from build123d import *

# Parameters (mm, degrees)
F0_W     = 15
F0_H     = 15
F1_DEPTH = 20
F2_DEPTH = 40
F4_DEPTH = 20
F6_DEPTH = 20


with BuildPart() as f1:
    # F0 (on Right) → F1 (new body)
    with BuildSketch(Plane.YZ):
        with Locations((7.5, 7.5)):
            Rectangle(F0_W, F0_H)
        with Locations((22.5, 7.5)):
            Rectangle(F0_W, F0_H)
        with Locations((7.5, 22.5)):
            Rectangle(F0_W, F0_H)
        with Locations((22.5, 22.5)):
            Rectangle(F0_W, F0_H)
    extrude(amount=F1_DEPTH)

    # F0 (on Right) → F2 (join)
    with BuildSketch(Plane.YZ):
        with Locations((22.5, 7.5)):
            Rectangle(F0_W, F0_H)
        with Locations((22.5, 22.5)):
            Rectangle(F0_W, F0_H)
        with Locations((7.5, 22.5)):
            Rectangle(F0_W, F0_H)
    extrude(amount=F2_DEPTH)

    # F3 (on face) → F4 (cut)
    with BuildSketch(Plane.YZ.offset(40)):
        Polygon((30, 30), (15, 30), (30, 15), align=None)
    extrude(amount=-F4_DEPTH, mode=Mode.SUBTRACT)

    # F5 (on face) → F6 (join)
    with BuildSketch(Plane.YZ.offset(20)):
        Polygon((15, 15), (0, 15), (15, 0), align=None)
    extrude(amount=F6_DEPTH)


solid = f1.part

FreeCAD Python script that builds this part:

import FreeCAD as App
import Part
import Sketcher
from FreeCAD import Vector
Q = App.Units.Quantity


def add_polygon(sketch, points):
    """Adds a closed chain of lines whose ends are joined by coincident constraints."""
    first, n = sketch.GeometryCount, len(points)
    for a, b in zip(points, points[1:] + points[:1]):
        sketch.addGeometry(Part.LineSegment(App.Vector(*a, 0), App.Vector(*b, 0)), False)
    for i in range(n):
        sketch.addConstraint(Sketcher.Constraint("Coincident", first + i, 2, first + (i + 1) % n, 1))

doc = App.newDocument("Part")
body = doc.addObject("PartDesign::Body", "Body")

sketch1 = body.newObject("Sketcher::SketchObject", "Sketch")
sketch1.AttachmentSupport = (doc.getObject("YZ_Plane"), [""])
sketch1.MapMode = "FlatFace"
add_polygon(sketch1, [(0, 0), (30, 0), (30, 30), (0, 30)])
sketch1.addConstraint(Sketcher.Constraint("Horizontal", 0))
sketch1.addConstraint(Sketcher.Constraint("Vertical", 1))
sketch1.addConstraint(Sketcher.Constraint("Horizontal", 2))
sketch1.addConstraint(Sketcher.Constraint("Vertical", 3))
sketch1.addConstraint(Sketcher.Constraint("Coincident", 3, 2, -1, 1))
sketch1.addConstraint(Sketcher.Constraint("Equal", 2, 1))
sketch1.addConstraint(Sketcher.Constraint("DistanceX", 0, 1, 0, 2, Q("30 mm")))
pad1 = body.newObject("PartDesign::Pad", "Pad")
pad1.Profile = sketch1
pad1.Length = 20

sketch2 = body.newObject("Sketcher::SketchObject", "Sketch001")
sketch2.AttachmentSupport = (doc.getObject("YZ_Plane"), [""])
sketch2.MapMode = "FlatFace"
add_polygon(sketch2, [(15, 0), (30, 0), (30, 30), (0, 30), (0, 15), (15, 15)])
sketch2.addConstraint(Sketcher.Constraint("Horizontal", 0))
sketch2.addConstraint(Sketcher.Constraint("Vertical", 1))
sketch2.addConstraint(Sketcher.Constraint("Horizontal", 2))
sketch2.addConstraint(Sketcher.Constraint("Vertical", 3))
sketch2.addConstraint(Sketcher.Constraint("Horizontal", 4))
sketch2.addConstraint(Sketcher.Constraint("Vertical", 5))
sketch2.addConstraint(Sketcher.Constraint("PointOnObject", 0, 2, -1))
sketch2.addConstraint(Sketcher.Constraint("PointOnObject", 2, 2, -2))
sketch2.addConstraint(Sketcher.Constraint("Equal", 0, 4))
sketch2.addConstraint(Sketcher.Constraint("Equal", 2, 1))
sketch2.addConstraint(Sketcher.Constraint("Equal", 4, 3))
sketch2.addConstraint(Sketcher.Constraint("DistanceX", 0, 1, 0, 2, Q("15 mm")))
pad2 = body.newObject("PartDesign::Pad", "Pad001")
pad2.Profile = sketch2
pad2.Length = 40

sketch3 = body.newObject("Sketcher::SketchObject", "Sketch002")
sketch3.AttachmentSupport = (doc.getObject("YZ_Plane"), [""])
sketch3.MapMode = "FlatFace"
sketch3.AttachmentOffset = App.Placement(Vector(0, 0, 40), App.Rotation())
add_polygon(sketch3, [(30, 30), (15, 30), (30, 15)])
sketch3.addConstraint(Sketcher.Constraint("Horizontal", 0))
sketch3.addConstraint(Sketcher.Constraint("Vertical", 2))
sketch3.addConstraint(Sketcher.Constraint("Equal", 0, 2))
sketch3.addConstraint(Sketcher.Constraint("DistanceX", 0, 2, 0, 1, Q("15 mm")))
sketch3.addConstraint(Sketcher.Constraint("DistanceX", -1, 1, 0, 2, Q("15 mm")))
sketch3.addConstraint(Sketcher.Constraint("DistanceY", -1, 1, 0, 2, Q("30 mm")))
pocket1 = body.newObject("PartDesign::Pocket", "Pocket")
pocket1.Profile = sketch3
pocket1.Length = 20

sketch4 = body.newObject("Sketcher::SketchObject", "Sketch003")
sketch4.AttachmentSupport = (doc.getObject("YZ_Plane"), [""])
sketch4.MapMode = "FlatFace"
sketch4.AttachmentOffset = App.Placement(Vector(0, 0, 20), App.Rotation())
add_polygon(sketch4, [(15, 15), (0, 15), (15, 0)])
sketch4.addConstraint(Sketcher.Constraint("Horizontal", 0))
sketch4.addConstraint(Sketcher.Constraint("Vertical", 2))
sketch4.addConstraint(Sketcher.Constraint("PointOnObject", 0, 2, -2))
sketch4.addConstraint(Sketcher.Constraint("PointOnObject", 1, 2, -1))
sketch4.addConstraint(Sketcher.Constraint("Equal", 0, 2))
sketch4.addConstraint(Sketcher.Constraint("DistanceX", 0, 2, 0, 1, Q("15 mm")))
pad3 = body.newObject("PartDesign::Pad", "Pad002")
pad3.Profile = sketch4
pad3.Length = 20

doc.recompute()
